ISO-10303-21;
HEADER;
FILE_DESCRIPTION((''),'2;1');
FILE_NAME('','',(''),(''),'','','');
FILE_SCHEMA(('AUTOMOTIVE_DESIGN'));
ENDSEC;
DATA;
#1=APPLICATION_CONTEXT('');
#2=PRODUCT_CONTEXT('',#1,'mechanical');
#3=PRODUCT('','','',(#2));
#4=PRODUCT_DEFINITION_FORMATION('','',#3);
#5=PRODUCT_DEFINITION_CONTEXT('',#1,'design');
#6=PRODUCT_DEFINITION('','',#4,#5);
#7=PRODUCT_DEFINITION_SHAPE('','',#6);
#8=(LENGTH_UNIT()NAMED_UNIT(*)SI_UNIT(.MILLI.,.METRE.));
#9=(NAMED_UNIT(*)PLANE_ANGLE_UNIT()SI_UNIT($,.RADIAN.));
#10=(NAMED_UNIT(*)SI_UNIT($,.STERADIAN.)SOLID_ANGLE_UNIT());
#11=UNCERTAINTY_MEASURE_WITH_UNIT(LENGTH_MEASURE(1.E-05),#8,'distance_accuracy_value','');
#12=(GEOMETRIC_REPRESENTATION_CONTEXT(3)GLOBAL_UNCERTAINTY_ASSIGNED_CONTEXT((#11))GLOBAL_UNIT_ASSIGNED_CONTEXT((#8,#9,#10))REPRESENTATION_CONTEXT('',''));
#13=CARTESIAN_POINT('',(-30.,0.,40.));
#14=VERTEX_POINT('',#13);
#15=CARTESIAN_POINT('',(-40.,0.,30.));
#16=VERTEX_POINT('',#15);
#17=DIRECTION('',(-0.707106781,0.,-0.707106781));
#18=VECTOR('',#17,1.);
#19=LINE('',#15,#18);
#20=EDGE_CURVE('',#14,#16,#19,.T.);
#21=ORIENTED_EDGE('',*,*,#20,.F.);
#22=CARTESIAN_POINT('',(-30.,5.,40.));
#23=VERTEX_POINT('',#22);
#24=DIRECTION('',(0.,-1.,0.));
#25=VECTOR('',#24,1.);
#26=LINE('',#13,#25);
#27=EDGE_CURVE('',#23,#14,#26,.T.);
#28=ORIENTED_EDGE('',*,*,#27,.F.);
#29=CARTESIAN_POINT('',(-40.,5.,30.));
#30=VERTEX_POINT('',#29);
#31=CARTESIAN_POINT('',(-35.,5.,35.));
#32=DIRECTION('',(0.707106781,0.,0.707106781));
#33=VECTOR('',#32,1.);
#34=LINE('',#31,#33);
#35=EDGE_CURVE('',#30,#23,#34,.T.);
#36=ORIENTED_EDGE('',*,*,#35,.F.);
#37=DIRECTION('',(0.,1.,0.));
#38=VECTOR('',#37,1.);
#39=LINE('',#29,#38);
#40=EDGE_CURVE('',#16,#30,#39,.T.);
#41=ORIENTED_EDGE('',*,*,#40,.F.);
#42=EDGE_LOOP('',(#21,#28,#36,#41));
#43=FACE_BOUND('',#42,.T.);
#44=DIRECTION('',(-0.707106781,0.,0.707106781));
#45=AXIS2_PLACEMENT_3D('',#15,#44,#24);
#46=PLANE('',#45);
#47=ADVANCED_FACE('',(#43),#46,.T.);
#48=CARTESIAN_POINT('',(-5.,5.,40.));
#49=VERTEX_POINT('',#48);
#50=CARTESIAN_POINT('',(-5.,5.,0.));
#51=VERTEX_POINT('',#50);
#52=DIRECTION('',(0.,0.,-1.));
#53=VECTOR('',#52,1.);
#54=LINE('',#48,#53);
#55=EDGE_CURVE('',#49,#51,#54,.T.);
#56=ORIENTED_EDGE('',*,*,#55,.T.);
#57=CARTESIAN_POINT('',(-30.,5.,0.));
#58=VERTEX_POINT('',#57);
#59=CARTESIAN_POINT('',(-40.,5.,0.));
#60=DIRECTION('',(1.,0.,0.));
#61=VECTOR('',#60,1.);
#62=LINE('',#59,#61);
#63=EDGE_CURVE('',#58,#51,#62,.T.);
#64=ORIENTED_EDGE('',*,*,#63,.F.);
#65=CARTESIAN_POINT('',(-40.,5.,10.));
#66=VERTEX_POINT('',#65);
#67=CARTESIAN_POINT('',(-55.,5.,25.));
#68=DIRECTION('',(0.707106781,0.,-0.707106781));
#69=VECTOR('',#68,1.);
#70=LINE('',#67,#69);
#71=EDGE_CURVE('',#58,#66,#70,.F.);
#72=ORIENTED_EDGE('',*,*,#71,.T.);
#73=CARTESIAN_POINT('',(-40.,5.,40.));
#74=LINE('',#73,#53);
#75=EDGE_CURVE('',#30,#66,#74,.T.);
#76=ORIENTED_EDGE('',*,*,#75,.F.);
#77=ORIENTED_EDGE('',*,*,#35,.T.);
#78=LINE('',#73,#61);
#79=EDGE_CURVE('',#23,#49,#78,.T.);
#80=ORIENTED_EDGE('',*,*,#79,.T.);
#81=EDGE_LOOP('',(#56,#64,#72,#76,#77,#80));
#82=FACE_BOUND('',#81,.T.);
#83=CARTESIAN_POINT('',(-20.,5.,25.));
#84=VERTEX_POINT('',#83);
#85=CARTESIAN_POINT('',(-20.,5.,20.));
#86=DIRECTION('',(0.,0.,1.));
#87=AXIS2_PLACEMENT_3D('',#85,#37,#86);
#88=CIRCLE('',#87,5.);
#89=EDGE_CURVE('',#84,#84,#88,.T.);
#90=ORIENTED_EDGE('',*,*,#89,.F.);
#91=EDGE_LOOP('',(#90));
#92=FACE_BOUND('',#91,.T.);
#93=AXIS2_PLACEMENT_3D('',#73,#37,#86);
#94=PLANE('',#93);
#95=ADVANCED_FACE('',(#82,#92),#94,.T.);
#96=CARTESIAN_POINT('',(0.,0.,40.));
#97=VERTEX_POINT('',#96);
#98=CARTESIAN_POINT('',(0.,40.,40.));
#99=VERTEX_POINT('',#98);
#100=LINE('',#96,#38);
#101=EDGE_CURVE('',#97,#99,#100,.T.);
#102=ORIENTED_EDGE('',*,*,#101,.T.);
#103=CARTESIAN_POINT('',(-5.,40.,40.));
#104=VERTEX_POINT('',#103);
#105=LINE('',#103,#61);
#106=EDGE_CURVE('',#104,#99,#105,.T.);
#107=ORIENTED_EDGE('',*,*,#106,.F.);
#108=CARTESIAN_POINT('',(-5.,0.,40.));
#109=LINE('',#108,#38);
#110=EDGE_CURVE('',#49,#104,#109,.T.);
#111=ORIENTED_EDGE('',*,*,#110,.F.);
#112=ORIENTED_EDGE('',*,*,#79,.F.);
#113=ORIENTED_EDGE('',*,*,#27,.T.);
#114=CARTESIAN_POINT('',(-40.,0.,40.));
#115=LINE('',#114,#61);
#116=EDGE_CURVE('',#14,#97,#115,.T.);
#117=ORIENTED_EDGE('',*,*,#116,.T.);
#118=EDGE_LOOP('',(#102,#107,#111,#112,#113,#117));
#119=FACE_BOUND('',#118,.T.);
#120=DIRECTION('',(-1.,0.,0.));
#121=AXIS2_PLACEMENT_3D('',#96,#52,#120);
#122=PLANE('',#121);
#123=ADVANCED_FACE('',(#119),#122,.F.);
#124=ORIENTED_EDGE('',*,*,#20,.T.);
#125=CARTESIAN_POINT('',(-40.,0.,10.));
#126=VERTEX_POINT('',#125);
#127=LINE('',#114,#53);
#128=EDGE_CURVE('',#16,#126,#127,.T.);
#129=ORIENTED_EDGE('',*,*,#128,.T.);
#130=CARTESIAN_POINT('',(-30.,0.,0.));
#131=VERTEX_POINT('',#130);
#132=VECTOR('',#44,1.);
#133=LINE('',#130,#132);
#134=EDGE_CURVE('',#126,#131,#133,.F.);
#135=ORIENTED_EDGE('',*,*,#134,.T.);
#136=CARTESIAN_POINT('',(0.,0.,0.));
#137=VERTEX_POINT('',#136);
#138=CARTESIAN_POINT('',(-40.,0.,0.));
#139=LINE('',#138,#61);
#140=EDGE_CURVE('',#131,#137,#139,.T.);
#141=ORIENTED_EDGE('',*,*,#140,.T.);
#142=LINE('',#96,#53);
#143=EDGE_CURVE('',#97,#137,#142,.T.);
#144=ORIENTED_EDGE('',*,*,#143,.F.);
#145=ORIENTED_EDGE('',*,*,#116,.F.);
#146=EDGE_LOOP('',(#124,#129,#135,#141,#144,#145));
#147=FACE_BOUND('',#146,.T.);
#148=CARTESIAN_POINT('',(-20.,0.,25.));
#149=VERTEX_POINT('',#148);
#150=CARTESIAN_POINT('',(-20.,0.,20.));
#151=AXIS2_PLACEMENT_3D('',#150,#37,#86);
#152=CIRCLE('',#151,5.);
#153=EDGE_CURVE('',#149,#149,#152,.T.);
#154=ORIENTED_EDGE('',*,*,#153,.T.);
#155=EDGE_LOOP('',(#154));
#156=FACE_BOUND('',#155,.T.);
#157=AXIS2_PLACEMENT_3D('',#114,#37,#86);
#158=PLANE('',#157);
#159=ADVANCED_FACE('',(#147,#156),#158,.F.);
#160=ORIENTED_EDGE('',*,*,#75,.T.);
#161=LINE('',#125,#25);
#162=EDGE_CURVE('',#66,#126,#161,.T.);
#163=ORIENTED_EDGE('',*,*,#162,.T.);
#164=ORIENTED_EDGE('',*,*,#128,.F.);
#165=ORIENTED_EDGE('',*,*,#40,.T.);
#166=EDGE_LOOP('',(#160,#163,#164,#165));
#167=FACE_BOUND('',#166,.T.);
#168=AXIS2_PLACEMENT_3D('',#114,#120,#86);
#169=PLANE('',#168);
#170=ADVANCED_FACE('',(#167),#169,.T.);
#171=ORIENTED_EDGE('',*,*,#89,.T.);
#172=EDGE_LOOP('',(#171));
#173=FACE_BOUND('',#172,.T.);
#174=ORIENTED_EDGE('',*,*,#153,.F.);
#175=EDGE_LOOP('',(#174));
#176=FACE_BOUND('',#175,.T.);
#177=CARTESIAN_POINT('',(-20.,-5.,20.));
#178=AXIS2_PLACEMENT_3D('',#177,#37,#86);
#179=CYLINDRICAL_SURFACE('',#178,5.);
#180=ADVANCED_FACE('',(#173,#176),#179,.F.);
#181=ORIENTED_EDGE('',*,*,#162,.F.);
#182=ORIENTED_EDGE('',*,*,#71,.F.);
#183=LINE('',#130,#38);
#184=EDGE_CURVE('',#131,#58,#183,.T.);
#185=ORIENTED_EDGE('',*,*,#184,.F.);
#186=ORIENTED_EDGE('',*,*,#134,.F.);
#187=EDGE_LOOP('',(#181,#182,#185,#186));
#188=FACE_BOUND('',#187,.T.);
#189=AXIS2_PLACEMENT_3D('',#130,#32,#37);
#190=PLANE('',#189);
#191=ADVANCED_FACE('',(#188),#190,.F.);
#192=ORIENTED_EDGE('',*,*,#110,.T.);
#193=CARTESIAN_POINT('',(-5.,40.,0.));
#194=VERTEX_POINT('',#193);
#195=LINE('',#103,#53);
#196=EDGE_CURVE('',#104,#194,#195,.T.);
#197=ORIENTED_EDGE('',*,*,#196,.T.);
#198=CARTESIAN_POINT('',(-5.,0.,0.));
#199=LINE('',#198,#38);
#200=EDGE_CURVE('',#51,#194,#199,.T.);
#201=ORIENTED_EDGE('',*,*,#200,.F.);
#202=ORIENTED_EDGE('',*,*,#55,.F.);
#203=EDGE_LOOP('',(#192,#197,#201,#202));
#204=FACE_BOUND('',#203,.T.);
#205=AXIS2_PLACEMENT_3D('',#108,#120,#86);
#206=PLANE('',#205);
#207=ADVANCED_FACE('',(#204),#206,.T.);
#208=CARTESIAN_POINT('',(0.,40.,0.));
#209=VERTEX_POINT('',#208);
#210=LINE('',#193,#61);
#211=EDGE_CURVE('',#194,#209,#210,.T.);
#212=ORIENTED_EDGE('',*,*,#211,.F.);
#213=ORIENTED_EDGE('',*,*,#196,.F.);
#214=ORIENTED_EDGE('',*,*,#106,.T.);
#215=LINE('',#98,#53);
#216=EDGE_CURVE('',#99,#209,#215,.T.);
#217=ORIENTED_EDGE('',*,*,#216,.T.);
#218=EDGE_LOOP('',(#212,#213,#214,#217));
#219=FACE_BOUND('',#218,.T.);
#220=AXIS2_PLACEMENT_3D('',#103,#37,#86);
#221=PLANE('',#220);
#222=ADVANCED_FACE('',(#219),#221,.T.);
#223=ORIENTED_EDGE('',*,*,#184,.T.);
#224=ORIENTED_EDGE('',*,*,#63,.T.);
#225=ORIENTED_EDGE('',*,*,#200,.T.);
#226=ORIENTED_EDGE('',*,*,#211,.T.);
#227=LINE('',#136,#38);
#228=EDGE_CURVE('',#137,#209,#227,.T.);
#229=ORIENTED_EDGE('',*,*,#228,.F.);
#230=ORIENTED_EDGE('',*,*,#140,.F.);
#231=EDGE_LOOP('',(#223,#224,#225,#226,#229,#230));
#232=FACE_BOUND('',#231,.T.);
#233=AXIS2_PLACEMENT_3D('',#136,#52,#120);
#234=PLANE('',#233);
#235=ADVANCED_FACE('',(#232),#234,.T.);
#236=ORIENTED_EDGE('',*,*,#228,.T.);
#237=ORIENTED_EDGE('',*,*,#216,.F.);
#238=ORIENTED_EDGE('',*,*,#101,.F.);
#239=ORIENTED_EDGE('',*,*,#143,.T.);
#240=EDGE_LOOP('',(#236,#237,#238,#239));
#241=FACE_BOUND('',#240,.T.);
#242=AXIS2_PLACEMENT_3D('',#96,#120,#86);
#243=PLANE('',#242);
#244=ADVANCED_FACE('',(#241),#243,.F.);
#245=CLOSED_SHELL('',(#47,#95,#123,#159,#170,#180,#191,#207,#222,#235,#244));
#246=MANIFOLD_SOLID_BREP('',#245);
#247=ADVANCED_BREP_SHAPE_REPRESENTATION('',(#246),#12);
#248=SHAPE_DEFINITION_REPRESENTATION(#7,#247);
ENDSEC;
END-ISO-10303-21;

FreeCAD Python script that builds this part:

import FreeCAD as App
import Part
import Sketcher
from FreeCAD import Vector
Q = App.Units.Quantity


def edges_at(feature, points):
    """Names of the edges that pass closest to the given points."""
    edges = feature.Shape.Edges
    near = lambda p: min(range(len(edges)), key=lambda i: edges[i].distToShape(Part.Vertex(*p))[0])
    return sorted({f"Edge{near(p) + 1}" for p in points})


def add_polygon(sketch, points):
    """Adds a closed chain of lines whose ends are joined by coincident constraints."""
    first, n = sketch.GeometryCount, len(points)
    for a, b in zip(points, points[1:] + points[:1]):
        sketch.addGeometry(Part.LineSegment(App.Vector(*a, 0), App.Vector(*b, 0)), False)
    for i in range(n):
        sketch.addConstraint(Sketcher.Constraint("Coincident", first + i, 2, first + (i + 1) % n, 1))

doc = App.newDocument("Part")
body = doc.addObject("PartDesign::Body", "Body")

sketch1 = doc.addObject("Sketcher::SketchObject", "Sketch")
body.addObject(sketch1)
sketch1.AttachmentSupport = (doc.XY_Plane, [""])
sketch1.MapMode = "FlatFace"
add_polygon(sketch1, [(-40, 0), (0, 0), (0, 40), (-5, 40), (-5, 5), (-40, 5)])
sketch1.addConstraint([
    Sketcher.Constraint("Horizontal", 0),
    Sketcher.Constraint("Vertical", 1),
    Sketcher.Constraint("Horizontal", 2),
    Sketcher.Constraint("Vertical", 3),
    Sketcher.Constraint("Horizontal", 4),
    Sketcher.Constraint("Vertical", 5),
    Sketcher.Constraint("Coincident", 0, 2, -1, 1),
    Sketcher.Constraint("Equal", 0, 1),
    Sketcher.Constraint("Equal", 4, 3),
    Sketcher.Constraint("DistanceX", 0, 1, 0, 2, Q("40 mm")),
    Sketcher.Constraint("DistanceX", 2, 2, 2, 1, Q("5 mm")),
])
pad1 = doc.addObject("PartDesign::Pad", "Pad")
body.addObject(pad1)
pad1.Profile = sketch1
pad1.Length = 40
doc.recompute()

chamfer = doc.addObject("PartDesign::Chamfer", "Chamfer")
body.addObject(chamfer)
chamfer.Base = (pad1, edges_at(pad1, [(-40, 2.5, 40), (-40, 2.5, 0)]))
chamfer.Size = 10

sketch2 = doc.addObject("Sketcher::SketchObject", "Sketch001")
body.addObject(sketch2)
sketch2.AttachmentSupport = (doc.XZ_Plane, [""])
sketch2.MapMode = "FlatFace"
sketch2.AttachmentOffset = App.Placement(Vector(0, 0, -5), App.Rotation())
sketch2.addGeometry(Part.Circle(Vector(-20, 20, 0), Vector(0, 0, 1), 5), False)
sketch2.addConstraint([
    Sketcher.Constraint("Diameter", 0, Q("10 mm")),
    Sketcher.Constraint("DistanceX", 0, 3, -1, 1, Q("20 mm")),
    Sketcher.Constraint("DistanceY", -1, 1, 0, 3, Q("20 mm")),
])
pocket1 = doc.addObject("PartDesign::Pocket", "Pocket")
body.addObject(pocket1)
pocket1.Profile = sketch2
pocket1.Length = 10
pocket1.Reversed = True

doc.recompute()
